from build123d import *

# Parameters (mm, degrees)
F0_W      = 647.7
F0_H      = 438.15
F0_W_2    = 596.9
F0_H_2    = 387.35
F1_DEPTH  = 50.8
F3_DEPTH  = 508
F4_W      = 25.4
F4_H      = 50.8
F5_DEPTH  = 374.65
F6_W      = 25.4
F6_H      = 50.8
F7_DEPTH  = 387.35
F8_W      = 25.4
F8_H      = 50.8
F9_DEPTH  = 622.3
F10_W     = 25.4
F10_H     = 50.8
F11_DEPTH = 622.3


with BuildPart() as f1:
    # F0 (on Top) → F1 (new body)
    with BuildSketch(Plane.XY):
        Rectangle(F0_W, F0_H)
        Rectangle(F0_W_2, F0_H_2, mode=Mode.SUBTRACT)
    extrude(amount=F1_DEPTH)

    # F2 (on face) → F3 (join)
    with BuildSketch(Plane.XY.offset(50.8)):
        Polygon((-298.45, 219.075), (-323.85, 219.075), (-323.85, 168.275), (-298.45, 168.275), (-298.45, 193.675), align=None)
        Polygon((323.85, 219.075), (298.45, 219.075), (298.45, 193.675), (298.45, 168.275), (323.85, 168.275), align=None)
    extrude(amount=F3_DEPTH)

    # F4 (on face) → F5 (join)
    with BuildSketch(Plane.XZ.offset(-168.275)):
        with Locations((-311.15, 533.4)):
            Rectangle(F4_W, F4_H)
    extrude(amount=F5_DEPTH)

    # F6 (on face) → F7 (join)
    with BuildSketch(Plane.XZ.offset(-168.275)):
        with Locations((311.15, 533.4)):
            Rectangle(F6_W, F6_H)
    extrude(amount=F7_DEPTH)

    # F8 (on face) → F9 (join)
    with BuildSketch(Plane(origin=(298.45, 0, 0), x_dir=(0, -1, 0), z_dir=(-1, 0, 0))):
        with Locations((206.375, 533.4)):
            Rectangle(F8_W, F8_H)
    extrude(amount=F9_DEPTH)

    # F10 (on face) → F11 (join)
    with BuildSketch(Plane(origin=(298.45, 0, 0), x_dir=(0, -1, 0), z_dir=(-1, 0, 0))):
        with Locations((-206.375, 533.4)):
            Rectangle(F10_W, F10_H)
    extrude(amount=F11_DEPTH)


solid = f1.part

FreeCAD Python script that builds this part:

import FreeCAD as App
import Part
import Sketcher

V = App.Vector
Q = App.Units.Quantity


def add_polygon(sketch, points):
    """Adds a closed chain of lines whose ends are joined by coincident constraints."""
    first, n = sketch.GeometryCount, len(points)
    for a, b in zip(points, points[1:] + points[:1]):
        sketch.addGeometry(Part.LineSegment(App.Vector(*a, 0), App.Vector(*b, 0)), False)
    for i in range(n):
        sketch.addConstraint(Sketcher.Constraint("Coincident", first + i, 2, first + (i + 1) % n, 1))

doc = App.newDocument("Part")
params = doc.addObject("Spreadsheet::Sheet", "Params")
for row, (alias, value) in enumerate([
    ("sketch1_width", "25.5 in"),
    ("sketch1_width2", "23.5 in"),
    ("sketch1_height", "17.25 in"),
    ("pad1_length", "2 in"),
    ("sketch2_width", "1 in"),
    ("sketch2_height", "2 in"),
    ("pad2_length", "20 in"),
    ("sketch3_width", "1 in"),
    ("sketch3_height", "2 in"),
    ("pad3_length", "14.75 in"),
    ("sketch4_width", "1 in"),
    ("sketch4_height", "2 in"),
    ("pad4_length", "15.25 in"),
    ("sketch5_width", "1 in"),
    ("sketch5_height", "2 in"),
    ("pad5_length", "24.5 in"),
    ("sketch6_width", "1 in"),
    ("sketch6_height", "2 in"),
    ("pad6_length", "24.5 in"),
], start=1):
    params.set(f"A{row}", alias)
    params.set(f"B{row}", "=" + value)
    params.setAlias(f"B{row}", alias)

body = doc.addObject("PartDesign::Body", "Body")

# Sketch on XY plane
sketch1 = doc.addObject("Sketcher::SketchObject", "Sketch")
body.addObject(sketch1)
sketch1.AttachmentSupport = (doc.XY_Plane, [""])
sketch1.MapMode = "FlatFace"
add_polygon(sketch1, [(-323.85, 219.075), (-323.85, -219.075), (323.85, -219.075), (323.85, 219.075)])  # lines 0-3
add_polygon(sketch1, [(298.45, -193.675), (-298.45, -193.675), (-298.45, 193.675), (298.45, 193.675)])  # lines 4-7
sketch1.addConstraint(Sketcher.Constraint("Vertical", 0))
sketch1.addConstraint(Sketcher.Constraint("Horizontal", 1))
sketch1.addConstraint(Sketcher.Constraint("Vertical", 2))
sketch1.addConstraint(Sketcher.Constraint("Horizontal", 3))
sketch1.addConstraint(Sketcher.Constraint("Horizontal", 4))
sketch1.addConstraint(Sketcher.Constraint("Vertical", 5))
sketch1.addConstraint(Sketcher.Constraint("Horizontal", 6))
sketch1.addConstraint(Sketcher.Constraint("Vertical", 7))
sketch1.addConstraint(Sketcher.Constraint("Symmetric", 0, 2, 2, 2, -1, 1))
sketch1.addConstraint(Sketcher.Constraint("Symmetric", 4, 2, 6, 2, -1, 1))
sketch1.addConstraint(Sketcher.Constraint("DistanceX", 1, 1, 1, 2, Q("25.5 in")))
sketch1.addConstraint(Sketcher.Constraint("DistanceX", 4, 2, 4, 1, Q("23.5 in")))
sketch1.addConstraint(Sketcher.Constraint("DistanceY", 0, 2, 4, 2, Q("1 in")))
sketch1.addConstraint(Sketcher.Constraint("DistanceY", 0, 2, 0, 1, Q("17.25 in")))
sketch1.setExpression("Constraints[18]", "Params.sketch1_width")
sketch1.setExpression("Constraints[19]", "Params.sketch1_width2")
sketch1.setExpression("Constraints[21]", "Params.sketch1_height")
pad1 = doc.addObject("PartDesign::Pad", "Pad")
body.addObject(pad1)
pad1.Profile = sketch1
pad1.setExpression("Length", "Params.pad1_length")

# Sketch on XY plane
sketch2 = doc.addObject("Sketcher::SketchObject", "Sketch001")
body.addObject(sketch2)
sketch2.AttachmentSupport = (doc.XY_Plane, [""])
sketch2.MapMode = "FlatFace"
sketch2.AttachmentOffset = App.Placement(V(0, 0, 2 * 25.4), App.Rotation())
add_polygon(sketch2, [(-298.45, 219.075), (-323.85, 219.075), (-323.85, 168.275), (-298.45, 168.275)])  # lines 0-3
add_polygon(sketch2, [(323.85, 219.075), (298.45, 219.075), (298.45, 168.275), (323.85, 168.275)])  # lines 4-7
sketch2.addConstraint(Sketcher.Constraint("Horizontal", 0))
sketch2.addConstraint(Sketcher.Constraint("Vertical", 1))
sketch2.addConstraint(Sketcher.Constraint("Horizontal", 2))
sketch2.addConstraint(Sketcher.Constraint("Vertical", 3))
sketch2.addConstraint(Sketcher.Constraint("Horizontal", 4))
sketch2.addConstraint(Sketcher.Constraint("Vertical", 5))
sketch2.addConstraint(Sketcher.Constraint("Horizontal", 6))
sketch2.addConstraint(Sketcher.Constraint("Vertical", 7))
sketch2.addConstraint(Sketcher.Constraint("Symmetric", 3, 2, 4, 2, -2))
sketch2.addConstraint(Sketcher.Constraint("Symmetric", 1, 2, 6, 2, -2))
sketch2.addConstraint(Sketcher.Constraint("DistanceX", 0, 2, 0, 1, Q("1 in")))
sketch2.addConstraint(Sketcher.Constraint("DistanceY", 1, 2, 1, 1, Q("2 in")))
sketch2.addConstraint(Sketcher.Constraint("DistanceX", 3, 2, 4, 2, Q("23.5 in")))
sketch2.addConstraint(Sketcher.Constraint("DistanceY", -1, 1, 0, 2, Q("8.625 in")))
sketch2.setExpression("Constraints[18]", "Params.sketch2_width")
sketch2.setExpression("Constraints[19]", "Params.sketch2_height")
pad2 = doc.addObject("PartDesign::Pad", "Pad001")
body.addObject(pad2)
pad2.Profile = sketch2
pad2.setExpression("Length", "Params.pad2_length")

# Sketch on XZ plane
sketch3 = doc.addObject("Sketcher::SketchObject", "Sketch002")
body.addObject(sketch3)
sketch3.AttachmentSupport = (doc.XZ_Plane, [""])
sketch3.MapMode = "FlatFace"
sketch3.AttachmentOffset = App.Placement(V(0, 0, -6.625 * 25.4), App.Rotation())
add_polygon(sketch3, [(-323.85, 558.8), (-323.85, 508), (-298.45, 508), (-298.45, 558.8)])  # lines 0-3
sketch3.addConstraint(Sketcher.Constraint("Vertical", 0))
sketch3.addConstraint(Sketcher.Constraint("Horizontal", 1))
sketch3.addConstraint(Sketcher.Constraint("Vertical", 2))
sketch3.addConstraint(Sketcher.Constraint("Horizontal", 3))
sketch3.addConstraint(Sketcher.Constraint("DistanceX", 1, 1, 1, 2, Q("1 in")))
sketch3.addConstraint(Sketcher.Constraint("DistanceY", 0, 2, 0, 1, Q("2 in")))
sketch3.addConstraint(Sketcher.Constraint("DistanceY", -1, 1, 0, 2, Q("20 in")))
sketch3.addConstraint(Sketcher.Constraint("DistanceX", 0, 2, -1, 1, Q("12.75 in")))
sketch3.setExpression("Constraints[8]", "Params.sketch3_width")
sketch3.setExpression("Constraints[9]", "Params.sketch3_height")
pad3 = doc.addObject("PartDesign::Pad", "Pad002")
body.addObject(pad3)
pad3.Profile = sketch3
pad3.setExpression("Length", "Params.pad3_length")

# Sketch on XZ plane
sketch4 = doc.addObject("Sketcher::SketchObject", "Sketch003")
body.addObject(sketch4)
sketch4.AttachmentSupport = (doc.XZ_Plane, [""])
sketch4.MapMode = "FlatFace"
sketch4.AttachmentOffset = App.Placement(V(0, 0, -6.625 * 25.4), App.Rotation())
add_polygon(sketch4, [(298.45, 558.8), (298.45, 508), (323.85, 508), (323.85, 558.8)])  # lines 0-3
sketch4.addConstraint(Sketcher.Constraint("Vertical", 0))
sketch4.addConstraint(Sketcher.Constraint("Horizontal", 1))
sketch4.addConstraint(Sketcher.Constraint("Vertical", 2))
sketch4.addConstraint(Sketcher.Constraint("Horizontal", 3))
sketch4.addConstraint(Sketcher.Constraint("DistanceX", 1, 1, 1, 2, Q("1 in")))
sketch4.addConstraint(Sketcher.Constraint("DistanceY", 0, 2, 0, 1, Q("2 in")))
sketch4.addConstraint(Sketcher.Constraint("DistanceY", -1, 1, 0, 2, Q("20 in")))
sketch4.addConstraint(Sketcher.Constraint("DistanceX", -1, 1, 0, 2, Q("11.75 in")))
sketch4.setExpression("Constraints[8]", "Params.sketch4_width")
sketch4.setExpression("Constraints[9]", "Params.sketch4_height")
pad4 = doc.addObject("PartDesign::Pad", "Pad003")
body.addObject(pad4)
pad4.Profile = sketch4
pad4.setExpression("Length", "Params.pad4_length")

# Sketch on YZ plane
sketch5 = doc.addObject("Sketcher::SketchObject", "Sketch004")
body.addObject(sketch5)
sketch5.AttachmentSupport = (doc.YZ_Plane, [""])
sketch5.MapMode = "FlatFace"
sketch5.AttachmentOffset = App.Placement(V(0, 0, 11.75 * 25.4), App.Rotation())
add_polygon(sketch5, [(-193.675, 558.8), (-193.675, 508), (-219.075, 508), (-219.075, 558.8)])  # lines 0-3
sketch5.addConstraint(Sketcher.Constraint("Vertical", 0))
sketch5.addConstraint(Sketcher.Constraint("Horizontal", 1))
sketch5.addConstraint(Sketcher.Constraint("Vertical", 2))
sketch5.addConstraint(Sketcher.Constraint("Horizontal", 3))
sketch5.addConstraint(Sketcher.Constraint("DistanceX", 1, 2, 1, 1, Q("1 in")))
sketch5.addConstraint(Sketcher.Constraint("DistanceY", 0, 2, 0, 1, Q("2 in")))
sketch5.addConstraint(Sketcher.Constraint("DistanceY", -1, 1, 0, 2, Q("20 in")))
sketch5.addConstraint(Sketcher.Constraint("DistanceX", 0, 2, -1, 1, Q("7.625 in")))
sketch5.setExpression("Constraints[8]", "Params.sketch5_width")
sketch5.setExpression("Constraints[9]", "Params.sketch5_height")
pad5 = doc.addObject("PartDesign::Pad", "Pad004")
body.addObject(pad5)
pad5.Profile = sketch5
pad5.setExpression("Length", "Params.pad5_length")
pad5.Reversed = True

# Sketch on YZ plane
sketch6 = doc.addObject("Sketcher::SketchObject", "Sketch005")
body.addObject(sketch6)
sketch6.AttachmentSupport = (doc.YZ_Plane, [""])
sketch6.MapMode = "FlatFace"
sketch6.AttachmentOffset = App.Placement(V(0, 0, 11.75 * 25.4), App.Rotation())
add_polygon(sketch6, [(219.075, 558.8), (219.075, 508), (193.675, 508), (193.675, 558.8)])  # lines 0-3
sketch6.addConstraint(Sketcher.Constraint("Vertical", 0))
sketch6.addConstraint(Sketcher.Constraint("Horizontal", 1))
sketch6.addConstraint(Sketcher.Constraint("Vertical", 2))
sketch6.addConstraint(Sketcher.Constraint("Horizontal", 3))
sketch6.addConstraint(Sketcher.Constraint("DistanceX", 1, 2, 1, 1, Q("1 in")))
sketch6.addConstraint(Sketcher.Constraint("DistanceY", 0, 2, 0, 1, Q("2 in")))
sketch6.addConstraint(Sketcher.Constraint("DistanceY", -1, 1, 0, 2, Q("20 in")))
sketch6.addConstraint(Sketcher.Constraint("DistanceX", -1, 1, 0, 2, Q("8.625 in")))
sketch6.setExpression("Constraints[8]", "Params.sketch6_width")
sketch6.setExpression("Constraints[9]", "Params.sketch6_height")
pad6 = doc.addObject("PartDesign::Pad", "Pad005")
body.addObject(pad6)
pad6.Profile = sketch6
pad6.setExpression("Length", "Params.pad6_length")
pad6.Reversed = True

doc.recompute()
